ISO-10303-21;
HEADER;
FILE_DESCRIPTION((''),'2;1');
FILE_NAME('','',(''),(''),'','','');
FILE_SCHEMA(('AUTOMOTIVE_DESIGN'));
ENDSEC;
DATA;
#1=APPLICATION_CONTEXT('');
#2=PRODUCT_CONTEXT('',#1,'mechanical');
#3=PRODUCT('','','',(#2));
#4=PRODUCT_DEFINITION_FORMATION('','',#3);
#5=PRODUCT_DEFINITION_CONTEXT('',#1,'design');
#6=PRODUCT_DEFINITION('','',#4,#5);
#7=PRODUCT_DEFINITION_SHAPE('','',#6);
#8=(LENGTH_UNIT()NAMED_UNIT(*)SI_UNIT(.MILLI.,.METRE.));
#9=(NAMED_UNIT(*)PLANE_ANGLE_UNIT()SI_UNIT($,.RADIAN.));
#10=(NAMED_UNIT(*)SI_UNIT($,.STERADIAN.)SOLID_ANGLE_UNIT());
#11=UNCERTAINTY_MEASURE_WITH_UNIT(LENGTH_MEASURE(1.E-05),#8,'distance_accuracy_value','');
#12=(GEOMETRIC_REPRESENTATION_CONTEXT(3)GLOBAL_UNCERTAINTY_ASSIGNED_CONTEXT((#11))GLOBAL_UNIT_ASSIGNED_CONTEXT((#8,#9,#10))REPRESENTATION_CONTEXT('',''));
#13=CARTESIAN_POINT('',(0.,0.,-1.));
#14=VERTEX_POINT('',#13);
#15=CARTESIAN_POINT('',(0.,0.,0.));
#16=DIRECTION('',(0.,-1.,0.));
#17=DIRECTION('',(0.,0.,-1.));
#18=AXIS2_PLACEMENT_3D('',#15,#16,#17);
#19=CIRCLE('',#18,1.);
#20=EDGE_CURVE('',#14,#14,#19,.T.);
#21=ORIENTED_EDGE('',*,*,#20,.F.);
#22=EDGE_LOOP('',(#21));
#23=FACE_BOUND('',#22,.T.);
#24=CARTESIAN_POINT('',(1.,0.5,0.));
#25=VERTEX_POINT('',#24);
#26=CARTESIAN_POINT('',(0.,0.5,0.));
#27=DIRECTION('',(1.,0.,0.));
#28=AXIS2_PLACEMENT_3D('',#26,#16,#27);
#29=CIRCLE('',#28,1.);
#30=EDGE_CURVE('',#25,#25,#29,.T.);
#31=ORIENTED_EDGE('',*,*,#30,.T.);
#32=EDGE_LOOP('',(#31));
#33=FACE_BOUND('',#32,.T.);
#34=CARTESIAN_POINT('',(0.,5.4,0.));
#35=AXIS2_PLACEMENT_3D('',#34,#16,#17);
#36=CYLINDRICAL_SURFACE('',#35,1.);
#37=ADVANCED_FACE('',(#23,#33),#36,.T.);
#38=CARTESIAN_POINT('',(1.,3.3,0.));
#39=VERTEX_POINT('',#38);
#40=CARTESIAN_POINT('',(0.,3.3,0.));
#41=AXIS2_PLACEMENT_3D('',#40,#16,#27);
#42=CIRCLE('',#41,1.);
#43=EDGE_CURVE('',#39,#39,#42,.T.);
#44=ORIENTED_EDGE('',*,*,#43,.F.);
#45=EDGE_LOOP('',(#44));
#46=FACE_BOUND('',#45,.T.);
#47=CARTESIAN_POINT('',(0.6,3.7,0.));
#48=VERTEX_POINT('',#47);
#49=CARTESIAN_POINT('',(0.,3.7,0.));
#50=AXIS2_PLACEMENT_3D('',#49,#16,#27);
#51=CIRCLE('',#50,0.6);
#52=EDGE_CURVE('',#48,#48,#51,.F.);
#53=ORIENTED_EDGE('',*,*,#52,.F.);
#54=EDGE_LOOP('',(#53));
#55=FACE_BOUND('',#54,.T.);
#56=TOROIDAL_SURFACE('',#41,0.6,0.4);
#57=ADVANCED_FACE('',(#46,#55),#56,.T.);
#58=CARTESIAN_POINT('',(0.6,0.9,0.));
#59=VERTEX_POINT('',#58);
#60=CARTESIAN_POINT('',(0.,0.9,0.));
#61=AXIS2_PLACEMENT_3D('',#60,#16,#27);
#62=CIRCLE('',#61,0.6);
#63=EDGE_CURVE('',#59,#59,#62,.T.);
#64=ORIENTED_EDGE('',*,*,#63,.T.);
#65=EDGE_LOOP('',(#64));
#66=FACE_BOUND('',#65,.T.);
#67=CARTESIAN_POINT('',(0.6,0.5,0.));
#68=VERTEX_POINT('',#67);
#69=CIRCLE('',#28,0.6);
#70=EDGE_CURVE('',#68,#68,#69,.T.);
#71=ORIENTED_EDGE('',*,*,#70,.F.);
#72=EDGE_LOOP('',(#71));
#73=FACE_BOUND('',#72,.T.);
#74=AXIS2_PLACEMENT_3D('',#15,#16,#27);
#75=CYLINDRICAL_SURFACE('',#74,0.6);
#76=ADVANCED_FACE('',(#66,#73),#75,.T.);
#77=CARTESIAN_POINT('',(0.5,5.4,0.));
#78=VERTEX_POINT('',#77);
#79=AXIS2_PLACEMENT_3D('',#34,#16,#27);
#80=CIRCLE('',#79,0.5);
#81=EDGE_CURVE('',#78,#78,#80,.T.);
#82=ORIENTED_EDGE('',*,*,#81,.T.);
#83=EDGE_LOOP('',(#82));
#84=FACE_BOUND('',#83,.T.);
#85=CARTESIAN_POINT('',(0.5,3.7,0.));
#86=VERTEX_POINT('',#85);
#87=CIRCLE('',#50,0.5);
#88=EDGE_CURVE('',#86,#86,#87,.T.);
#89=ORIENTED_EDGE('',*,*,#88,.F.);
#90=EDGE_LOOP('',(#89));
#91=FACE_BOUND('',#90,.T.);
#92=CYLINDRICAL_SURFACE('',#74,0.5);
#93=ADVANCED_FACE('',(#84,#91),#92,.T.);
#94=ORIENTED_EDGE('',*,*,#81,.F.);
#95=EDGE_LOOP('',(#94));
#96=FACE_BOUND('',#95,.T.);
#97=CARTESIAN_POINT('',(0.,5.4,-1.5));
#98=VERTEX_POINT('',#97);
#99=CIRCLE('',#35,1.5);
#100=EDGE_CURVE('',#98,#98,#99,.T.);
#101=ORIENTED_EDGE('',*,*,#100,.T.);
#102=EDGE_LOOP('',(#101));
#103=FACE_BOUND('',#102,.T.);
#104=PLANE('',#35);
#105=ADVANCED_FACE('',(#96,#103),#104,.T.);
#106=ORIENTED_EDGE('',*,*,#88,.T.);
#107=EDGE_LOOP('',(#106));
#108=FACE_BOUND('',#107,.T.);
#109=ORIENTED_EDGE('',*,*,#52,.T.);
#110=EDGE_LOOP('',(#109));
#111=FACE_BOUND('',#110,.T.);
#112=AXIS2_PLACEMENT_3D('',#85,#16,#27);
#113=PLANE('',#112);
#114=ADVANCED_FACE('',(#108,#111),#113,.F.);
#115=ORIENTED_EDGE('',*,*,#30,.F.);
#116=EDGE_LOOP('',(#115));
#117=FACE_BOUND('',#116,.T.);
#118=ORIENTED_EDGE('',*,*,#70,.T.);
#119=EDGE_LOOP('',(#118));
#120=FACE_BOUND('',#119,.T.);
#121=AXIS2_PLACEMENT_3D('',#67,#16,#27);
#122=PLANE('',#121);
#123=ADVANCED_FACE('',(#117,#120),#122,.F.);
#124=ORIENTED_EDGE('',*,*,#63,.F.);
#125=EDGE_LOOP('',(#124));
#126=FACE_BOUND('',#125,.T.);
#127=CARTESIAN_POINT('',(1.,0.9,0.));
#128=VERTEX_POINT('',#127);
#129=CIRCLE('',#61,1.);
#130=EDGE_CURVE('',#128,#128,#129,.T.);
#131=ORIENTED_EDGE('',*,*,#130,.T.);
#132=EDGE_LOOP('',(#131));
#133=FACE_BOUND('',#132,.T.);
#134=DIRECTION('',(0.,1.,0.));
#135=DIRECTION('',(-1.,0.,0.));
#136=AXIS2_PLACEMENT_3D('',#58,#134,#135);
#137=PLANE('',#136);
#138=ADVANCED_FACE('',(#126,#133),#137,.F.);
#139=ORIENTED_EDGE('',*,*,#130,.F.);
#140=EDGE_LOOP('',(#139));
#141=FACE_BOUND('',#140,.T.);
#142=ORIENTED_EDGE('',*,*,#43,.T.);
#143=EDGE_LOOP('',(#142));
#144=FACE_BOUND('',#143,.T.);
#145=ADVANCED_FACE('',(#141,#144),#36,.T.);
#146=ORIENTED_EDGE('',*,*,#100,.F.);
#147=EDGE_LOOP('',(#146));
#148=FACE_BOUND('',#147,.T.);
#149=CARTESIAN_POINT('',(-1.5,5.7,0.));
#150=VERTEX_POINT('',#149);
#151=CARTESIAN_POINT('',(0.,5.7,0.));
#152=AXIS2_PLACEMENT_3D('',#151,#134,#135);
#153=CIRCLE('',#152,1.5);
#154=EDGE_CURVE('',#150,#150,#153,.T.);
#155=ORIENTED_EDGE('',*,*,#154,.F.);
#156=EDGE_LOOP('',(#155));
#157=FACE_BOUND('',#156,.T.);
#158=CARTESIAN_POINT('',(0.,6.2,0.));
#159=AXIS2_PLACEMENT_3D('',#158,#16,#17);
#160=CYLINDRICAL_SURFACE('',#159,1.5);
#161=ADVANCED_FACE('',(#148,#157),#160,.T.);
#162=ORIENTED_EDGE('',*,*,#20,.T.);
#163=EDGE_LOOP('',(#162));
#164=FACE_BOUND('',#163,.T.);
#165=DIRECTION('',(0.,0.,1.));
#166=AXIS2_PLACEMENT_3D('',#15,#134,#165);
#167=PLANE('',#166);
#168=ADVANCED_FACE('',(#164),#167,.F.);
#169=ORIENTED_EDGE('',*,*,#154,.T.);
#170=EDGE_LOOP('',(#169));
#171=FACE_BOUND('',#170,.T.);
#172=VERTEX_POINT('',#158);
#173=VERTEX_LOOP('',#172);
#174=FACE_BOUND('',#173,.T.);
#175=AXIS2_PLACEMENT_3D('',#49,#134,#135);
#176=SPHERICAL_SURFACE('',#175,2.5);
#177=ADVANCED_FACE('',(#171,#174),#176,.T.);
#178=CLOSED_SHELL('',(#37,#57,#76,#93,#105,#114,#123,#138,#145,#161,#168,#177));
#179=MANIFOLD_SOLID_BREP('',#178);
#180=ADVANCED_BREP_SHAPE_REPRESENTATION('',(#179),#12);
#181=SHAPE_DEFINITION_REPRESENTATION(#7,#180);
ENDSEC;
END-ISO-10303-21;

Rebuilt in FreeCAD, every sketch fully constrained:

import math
import FreeCAD as App
import Part
import Sketcher
Q = App.Units.Quantity


def edges_at(feature, points):
    """Names of the edges that pass closest to the given points."""
    edges = feature.Shape.Edges
    near = lambda p: min(range(len(edges)), key=lambda i: edges[i].distToShape(Part.Vertex(*p))[0])
    return sorted({f"Edge{near(p) + 1}" for p in points})


def add_polygon(sketch, points):
    """Adds a closed chain of lines whose ends are joined by coincident constraints."""
    first, n = sketch.GeometryCount, len(points)
    for a, b in zip(points, points[1:] + points[:1]):
        sketch.addGeometry(Part.LineSegment(App.Vector(*a, 0), App.Vector(*b, 0)), False)
    for i in range(n):
        sketch.addConstraint(Sketcher.Constraint("Coincident", first + i, 2, first + (i + 1) % n, 1))

doc = App.newDocument("Part")
body = doc.addObject("PartDesign::Body", "Body")

# Sketch on XZ plane
sketch1 = body.newObject("Sketcher::SketchObject", "Sketch")
sketch1.AttachmentSupport = (doc.getObject("XZ_Plane"), [""])
sketch1.MapMode = "FlatFace"
sketch1.addGeometry(Part.Circle(App.Vector(0, 0, 0), App.Vector(0, 0, 1), 1.5), False)
sketch1.addConstraint(Sketcher.Constraint("Coincident", 0, 3, -1, 1))
sketch1.addConstraint(Sketcher.Constraint("Diameter", 0, Q("3 mm")))
pad1 = body.newObject("PartDesign::Pad", "Pad")
pad1.Profile = sketch1
pad1.Length = 6.2
pad1.Reversed = True

# Sketch on XY plane
sketch2 = body.newObject("Sketcher::SketchObject", "Sketch001")
sketch2.AttachmentSupport = (doc.getObject("XY_Plane"), [""])
sketch2.MapMode = "FlatFace"
sketch2.addGeometry(Part.LineSegment(App.Vector(0, 6.3, 0), App.Vector(0, 6.2, 0)), False)
sketch2.addGeometry(Part.ArcOfCircle(Part.Circle(App.Vector(0, 3.7, 0), App.Vector(0, 0, 1), 2.5), math.radians(53.130102), math.radians(90)), False)
sketch2.addGeometry(Part.LineSegment(App.Vector(1.5, 5.7, 0), App.Vector(1.5, 6.3, 0)), False)
sketch2.addGeometry(Part.LineSegment(App.Vector(1.5, 6.3, 0), App.Vector(0, 6.3, 0)), False)
sketch2.addConstraint(Sketcher.Constraint("Coincident", 0, 2, 1, 2))
sketch2.addConstraint(Sketcher.Constraint("Coincident", 1, 1, 2, 1))
sketch2.addConstraint(Sketcher.Constraint("Coincident", 2, 2, 3, 1))
sketch2.addConstraint(Sketcher.Constraint("Coincident", 3, 2, 0, 1))
sketch2.addConstraint(Sketcher.Constraint("Vertical", 0))
sketch2.addConstraint(Sketcher.Constraint("Vertical", 2))
sketch2.addConstraint(Sketcher.Constraint("Horizontal", 3))
sketch2.addConstraint(Sketcher.Constraint("PointOnObject", 1, 3, -2))
sketch2.addConstraint(Sketcher.Constraint("PointOnObject", 0, 2, -2))
sketch2.addConstraint(Sketcher.Constraint("Radius", 1, Q("2.5 mm")))
sketch2.addConstraint(Sketcher.Constraint("DistanceX", 3, 2, 3, 1, Q("1.5 mm")))
sketch2.addConstraint(Sketcher.Constraint("DistanceY", 0, 2, 0, 1, Q("0.1 mm")))
sketch2.addConstraint(Sketcher.Constraint("DistanceY", -1, 1, 1, 3, Q("3.7 mm")))
groove = body.newObject("PartDesign::Groove", "Groove")
groove.Profile = sketch2
groove.ReferenceAxis = (sketch2, ["V_Axis"])
groove.Angle = 360

# Sketch on XZ plane
sketch3 = body.newObject("Sketcher::SketchObject", "Sketch002")
sketch3.AttachmentSupport = (doc.getObject("XZ_Plane"), [""])
sketch3.MapMode = "FlatFace"
add_polygon(sketch3, [(-3.251, 3.251), (-3.251, -3.251), (3.251, -3.251), (3.251, 3.251)])  # lines 0-3
sketch3.addGeometry(Part.Circle(App.Vector(0, 0, 0), App.Vector(0, 0, 1), 1), False)  # 4
sketch3.addConstraint(Sketcher.Constraint("Vertical", 0))
sketch3.addConstraint(Sketcher.Constraint("Horizontal", 1))
sketch3.addConstraint(Sketcher.Constraint("Vertical", 2))
sketch3.addConstraint(Sketcher.Constraint("Horizontal", 3))
sketch3.addConstraint(Sketcher.Constraint("Coincident", 4, 3, -1, 1))
sketch3.addConstraint(Sketcher.Constraint("Symmetric", 0, 2, 2, 2, -1, 1))
sketch3.addConstraint(Sketcher.Constraint("Equal", 3, 0))
sketch3.addConstraint(Sketcher.Constraint("Diameter", 4, Q("2 mm")))
sketch3.addConstraint(Sketcher.Constraint("DistanceX", 1, 1, 1, 2, Q("6.502 mm")))
pocket1 = body.newObject("PartDesign::Pocket", "Pocket")
pocket1.Profile = sketch3
pocket1.Length = 5.4

# Sketch on XY plane
sketch4 = body.newObject("Sketcher::SketchObject", "Sketch003")
sketch4.AttachmentSupport = (doc.getObject("XY_Plane"), [""])
sketch4.MapMode = "FlatFace"
add_polygon(sketch4, [(0.6, 0.9), (0.6, 0.5), (1, 0.5), (1, 0.9)])  # lines 0-3
add_polygon(sketch4, [(0.5, 5.4), (0.5, 3.7), (1, 3.7), (1, 5.4)])  # lines 4-7
sketch4.addConstraint(Sketcher.Constraint("Vertical", 0))
sketch4.addConstraint(Sketcher.Constraint("Horizontal", 1))
sketch4.addConstraint(Sketcher.Constraint("Vertical", 2))
sketch4.addConstraint(Sketcher.Constraint("Horizontal", 3))
sketch4.addConstraint(Sketcher.Constraint("Vertical", 4))
sketch4.addConstraint(Sketcher.Constraint("Horizontal", 5))
sketch4.addConstraint(Sketcher.Constraint("Vertical", 6))
sketch4.addConstraint(Sketcher.Constraint("Horizontal", 7))
sketch4.addConstraint(Sketcher.Constraint("Vertical", 2, 2, 5, 2))
sketch4.addConstraint(Sketcher.Constraint("Equal", 3, 0))
sketch4.addConstraint(Sketcher.Constraint("DistanceX", 1, 1, 1, 2, Q("0.4 mm")))
sketch4.addConstraint(Sketcher.Constraint("DistanceX", 5, 1, 5, 2, Q("0.5 mm")))
sketch4.addConstraint(Sketcher.Constraint("DistanceY", 4, 2, 4, 1, Q("1.7 mm")))
sketch4.addConstraint(Sketcher.Constraint("DistanceX", -1, 1, 1, 2, Q("1 mm")))
sketch4.addConstraint(Sketcher.Constraint("DistanceY", -1, 1, 0, 2, Q("0.5 mm")))
sketch4.addConstraint(Sketcher.Constraint("DistanceY", -1, 1, 4, 2, Q("3.7 mm")))
groove2 = body.newObject("PartDesign::Groove", "Groove001")
groove2.Profile = sketch4
groove2.ReferenceAxis = (sketch4, ["V_Axis"])
groove2.Angle = 360
doc.recompute()

fillet = body.newObject("PartDesign::Fillet", "Fillet")
fillet.Base = (groove2, edges_at(groove2, [(-1, 3.7, 0)]))
fillet.Radius = 0.4

doc.recompute()
